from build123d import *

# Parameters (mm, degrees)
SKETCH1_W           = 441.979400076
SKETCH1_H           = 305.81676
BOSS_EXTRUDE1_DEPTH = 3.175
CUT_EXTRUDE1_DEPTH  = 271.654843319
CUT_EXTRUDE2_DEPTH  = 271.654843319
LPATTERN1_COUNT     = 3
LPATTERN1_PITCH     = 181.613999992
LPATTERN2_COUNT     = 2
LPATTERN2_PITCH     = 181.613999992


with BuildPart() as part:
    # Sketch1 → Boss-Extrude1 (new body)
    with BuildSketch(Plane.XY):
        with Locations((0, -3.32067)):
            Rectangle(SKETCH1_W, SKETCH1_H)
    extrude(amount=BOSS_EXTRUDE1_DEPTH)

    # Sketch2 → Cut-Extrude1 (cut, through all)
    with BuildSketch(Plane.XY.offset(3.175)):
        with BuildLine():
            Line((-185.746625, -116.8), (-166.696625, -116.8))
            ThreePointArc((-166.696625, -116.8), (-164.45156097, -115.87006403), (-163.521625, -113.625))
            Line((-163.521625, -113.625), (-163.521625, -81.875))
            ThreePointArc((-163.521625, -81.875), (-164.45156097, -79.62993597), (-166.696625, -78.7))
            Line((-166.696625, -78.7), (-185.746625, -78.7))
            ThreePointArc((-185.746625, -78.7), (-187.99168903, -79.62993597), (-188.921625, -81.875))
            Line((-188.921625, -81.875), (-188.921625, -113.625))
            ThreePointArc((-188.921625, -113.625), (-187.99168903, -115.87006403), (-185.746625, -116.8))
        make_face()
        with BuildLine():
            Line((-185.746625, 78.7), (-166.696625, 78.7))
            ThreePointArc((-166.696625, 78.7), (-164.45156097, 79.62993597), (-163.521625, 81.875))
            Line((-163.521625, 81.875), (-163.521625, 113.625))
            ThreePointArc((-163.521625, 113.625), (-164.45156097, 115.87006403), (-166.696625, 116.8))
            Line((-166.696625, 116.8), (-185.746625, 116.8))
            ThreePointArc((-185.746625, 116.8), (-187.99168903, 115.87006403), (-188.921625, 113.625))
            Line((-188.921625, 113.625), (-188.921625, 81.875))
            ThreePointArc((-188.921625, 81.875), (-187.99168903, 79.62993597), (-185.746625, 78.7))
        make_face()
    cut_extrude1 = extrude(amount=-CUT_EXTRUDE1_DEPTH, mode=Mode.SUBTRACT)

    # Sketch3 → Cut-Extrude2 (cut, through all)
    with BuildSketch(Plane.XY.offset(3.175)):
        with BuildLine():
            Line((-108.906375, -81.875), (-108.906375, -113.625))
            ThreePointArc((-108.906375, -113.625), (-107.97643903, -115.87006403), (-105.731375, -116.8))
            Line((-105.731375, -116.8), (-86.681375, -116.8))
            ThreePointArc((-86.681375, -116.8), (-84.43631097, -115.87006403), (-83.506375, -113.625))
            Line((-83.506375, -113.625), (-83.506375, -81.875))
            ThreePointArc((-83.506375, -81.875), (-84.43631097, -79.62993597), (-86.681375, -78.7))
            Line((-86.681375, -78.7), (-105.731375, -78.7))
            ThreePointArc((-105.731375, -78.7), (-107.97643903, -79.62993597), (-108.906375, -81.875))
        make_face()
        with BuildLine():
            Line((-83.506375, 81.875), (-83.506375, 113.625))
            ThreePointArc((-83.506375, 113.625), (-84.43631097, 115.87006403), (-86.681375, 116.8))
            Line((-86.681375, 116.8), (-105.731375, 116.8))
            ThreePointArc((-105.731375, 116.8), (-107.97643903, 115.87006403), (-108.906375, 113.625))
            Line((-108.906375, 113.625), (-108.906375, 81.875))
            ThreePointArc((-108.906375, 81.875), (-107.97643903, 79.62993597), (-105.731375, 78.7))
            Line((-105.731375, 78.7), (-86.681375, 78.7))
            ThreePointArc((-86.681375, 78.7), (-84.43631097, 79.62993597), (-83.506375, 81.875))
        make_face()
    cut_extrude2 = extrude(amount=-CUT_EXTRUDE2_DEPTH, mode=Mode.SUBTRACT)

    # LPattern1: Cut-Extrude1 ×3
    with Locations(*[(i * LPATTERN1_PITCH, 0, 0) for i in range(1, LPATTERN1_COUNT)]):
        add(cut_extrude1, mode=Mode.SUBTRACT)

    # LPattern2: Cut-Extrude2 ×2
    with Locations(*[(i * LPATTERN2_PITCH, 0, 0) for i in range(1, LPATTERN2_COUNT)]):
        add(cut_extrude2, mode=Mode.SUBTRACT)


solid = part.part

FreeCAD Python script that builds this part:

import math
import FreeCAD as App
import Part
import Sketcher
from FreeCAD import Vector
Q = App.Units.Quantity

doc = App.newDocument("Part")
body = doc.addObject("PartDesign::Body", "Body")

sketch1 = doc.addObject("Sketcher::SketchObject", "Sketch")
body.addObject(sketch1)
sketch1.AttachmentSupport = (doc.XY_Plane, [""])
sketch1.MapMode = "FlatFace"
sketch1.addGeometry(Part.LineSegment(Vector(-221, 150, 0), Vector(-221, -156, 0)), False)
sketch1.addGeometry(Part.LineSegment(Vector(-221, -156, 0), Vector(221, -156, 0)), False)
sketch1.addGeometry(Part.LineSegment(Vector(221, -156, 0), Vector(221, 150, 0)), False)
sketch1.addGeometry(Part.LineSegment(Vector(221, 150, 0), Vector(-221, 150, 0)), False)
sketch1.addConstraint(Sketcher.Constraint("Coincident", 0, 2, 1, 1))
sketch1.addConstraint(Sketcher.Constraint("Coincident", 1, 2, 2, 1))
sketch1.addConstraint(Sketcher.Constraint("Coincident", 2, 2, 3, 1))
sketch1.addConstraint(Sketcher.Constraint("Coincident", 3, 2, 0, 1))
sketch1.addConstraint(Sketcher.Constraint("Vertical", 0))
sketch1.addConstraint(Sketcher.Constraint("Horizontal", 1))
sketch1.addConstraint(Sketcher.Constraint("Vertical", 2))
sketch1.addConstraint(Sketcher.Constraint("Horizontal", 3))
sketch1.addConstraint(Sketcher.Constraint("DistanceX", 1, 1, 1, 2, 441.9794))
sketch1.addConstraint(Sketcher.Constraint("DistanceY", 0, 2, 0, 1, 305.81676))
sketch1.addConstraint(Sketcher.Constraint("DistanceX", 0, 2, -1, 1, 220.9897))
sketch1.addConstraint(Sketcher.Constraint("DistanceY", 0, 2, -1, 1, 156.22905))
pad1 = doc.addObject("PartDesign::Pad", "Pad")
body.addObject(pad1)
pad1.Profile = sketch1
pad1.Length = Q("0.125 in")

sketch2 = doc.addObject("Sketcher::SketchObject", "Sketch001")
body.addObject(sketch2)
sketch2.AttachmentSupport = (doc.XY_Plane, [""])
sketch2.MapMode = "FlatFace"
sketch2.AttachmentOffset = App.Placement(Vector(0, 0, 0.125 * 25.4), App.Rotation())
sketch2.addGeometry(Part.LineSegment(Vector(-185.7, -116.8, 0), Vector(-166.7, -116.8, 0)), False)
sketch2.addGeometry(Part.ArcOfCircle(Part.Circle(Vector(-166.7, -113.6, 0), Vector(0, 0, 1), 3.2), math.radians(-90), math.radians(0)), False)
sketch2.addGeometry(Part.LineSegment(Vector(-163.5, -113.6, 0), Vector(-163.5, -81.9, 0)), False)
sketch2.addGeometry(Part.ArcOfCircle(Part.Circle(Vector(-166.7, -81.9, 0), Vector(0, 0, 1), 3.2), math.radians(0), math.radians(90)), False)
sketch2.addGeometry(Part.LineSegment(Vector(-166.7, -78.7, 0), Vector(-185.7, -78.7, 0)), False)
sketch2.addGeometry(Part.ArcOfCircle(Part.Circle(Vector(-185.7, -81.9, 0), Vector(0, 0, 1), 3.2), math.radians(90), math.radians(180)), False)
sketch2.addGeometry(Part.LineSegment(Vector(-188.9, -81.9, 0), Vector(-188.9, -113.6, 0)), False)
sketch2.addGeometry(Part.ArcOfCircle(Part.Circle(Vector(-185.7, -113.6, 0), Vector(0, 0, 1), 3.2), math.radians(-180), math.radians(-90)), False)
sketch2.addGeometry(Part.LineSegment(Vector(-185.7, 78.7, 0), Vector(-166.7, 78.7, 0)), False)
sketch2.addGeometry(Part.ArcOfCircle(Part.Circle(Vector(-166.7, 81.9, 0), Vector(0, 0, 1), 3.2), math.radians(-90), math.radians(0)), False)
sketch2.addGeometry(Part.LineSegment(Vector(-163.5, 81.9, 0), Vector(-163.5, 113.6, 0)), False)
sketch2.addGeometry(Part.ArcOfCircle(Part.Circle(Vector(-166.7, 113.6, 0), Vector(0, 0, 1), 3.2), math.radians(0), math.radians(90)), False)
sketch2.addGeometry(Part.LineSegment(Vector(-166.7, 116.8, 0), Vector(-185.7, 116.8, 0)), False)
sketch2.addGeometry(Part.ArcOfCircle(Part.Circle(Vector(-185.7, 113.6, 0), Vector(0, 0, 1), 3.2), math.radians(90), math.radians(180)), False)
sketch2.addGeometry(Part.LineSegment(Vector(-188.9, 113.6, 0), Vector(-188.9, 81.9, 0)), False)
sketch2.addGeometry(Part.ArcOfCircle(Part.Circle(Vector(-185.7, 81.9, 0), Vector(0, 0, 1), 3.2), math.radians(-180), math.radians(-90)), False)
sketch2.addConstraint(Sketcher.Constraint("Tangent", 0, 2, 1, 1))
sketch2.addConstraint(Sketcher.Constraint("Tangent", 1, 2, 2, 1))
sketch2.addConstraint(Sketcher.Constraint("Tangent", 2, 2, 3, 1))
sketch2.addConstraint(Sketcher.Constraint("Tangent", 3, 2, 4, 1))
sketch2.addConstraint(Sketcher.Constraint("Tangent", 4, 2, 5, 1))
sketch2.addConstraint(Sketcher.Constraint("Tangent", 5, 2, 6, 1))
sketch2.addConstraint(Sketcher.Constraint("Tangent", 6, 2, 7, 1))
sketch2.addConstraint(Sketcher.Constraint("Tangent", 7, 2, 0, 1))
sketch2.addConstraint(Sketcher.Constraint("Tangent", 8, 2, 9, 1))
sketch2.addConstraint(Sketcher.Constraint("Tangent", 9, 2, 10, 1))
sketch2.addConstraint(Sketcher.Constraint("Tangent", 10, 2, 11, 1))
sketch2.addConstraint(Sketcher.Constraint("Tangent", 11, 2, 12, 1))
sketch2.addConstraint(Sketcher.Constraint("Tangent", 12, 2, 13, 1))
sketch2.addConstraint(Sketcher.Constraint("Tangent", 13, 2, 14, 1))
sketch2.addConstraint(Sketcher.Constraint("Tangent", 14, 2, 15, 1))
sketch2.addConstraint(Sketcher.Constraint("Tangent", 15, 2, 8, 1))
sketch2.addConstraint(Sketcher.Constraint("Horizontal", 0))
sketch2.addConstraint(Sketcher.Constraint("Vertical", 2))
sketch2.addConstraint(Sketcher.Constraint("Horizontal", 4))
sketch2.addConstraint(Sketcher.Constraint("Vertical", 6))
sketch2.addConstraint(Sketcher.Constraint("Horizontal", 8))
sketch2.addConstraint(Sketcher.Constraint("Vertical", 10))
sketch2.addConstraint(Sketcher.Constraint("Horizontal", 12))
sketch2.addConstraint(Sketcher.Constraint("Vertical", 14))
sketch2.addConstraint(Sketcher.Constraint("Equal", 1, 3))
sketch2.addConstraint(Sketcher.Constraint("Equal", 3, 5))
sketch2.addConstraint(Sketcher.Constraint("Equal", 5, 7))
sketch2.addConstraint(Sketcher.Constraint("Equal", 7, 9))
sketch2.addConstraint(Sketcher.Constraint("Equal", 9, 11))
sketch2.addConstraint(Sketcher.Constraint("Equal", 11, 13))
sketch2.addConstraint(Sketcher.Constraint("Equal", 13, 15))
sketch2.addConstraint(Sketcher.Constraint("Symmetric", 3, 3, 9, 3, -1))
sketch2.addConstraint(Sketcher.Constraint("Symmetric", 7, 3, 13, 3, -1))
sketch2.addConstraint(Sketcher.Constraint("Radius", 1, Q("0.125 in")))
sketch2.addConstraint(Sketcher.Constraint("DistanceX", 5, 2, 2, 2, Q("1 in")))
sketch2.addConstraint(Sketcher.Constraint("DistanceY", 2, 1, 2, 2, Q("1.25 in")))
sketch2.addConstraint(Sketcher.Constraint("DistanceY", 1, 3, -1, 1, 113.625))
sketch2.addConstraint(Sketcher.Constraint("DistanceX", 1, 3, -1, 1, 166.696625))
pocket1 = doc.addObject("PartDesign::Pocket", "Pocket")
body.addObject(pocket1)
pocket1.Profile = sketch2
pocket1.Type = "ThroughAll"

sketch3 = doc.addObject("Sketcher::SketchObject", "Sketch002")
body.addObject(sketch3)
sketch3.AttachmentSupport = (doc.XY_Plane, [""])
sketch3.MapMode = "FlatFace"
sketch3.AttachmentOffset = App.Placement(Vector(0, 0, 0.125 * 25.4), App.Rotation())
sketch3.addGeometry(Part.LineSegment(Vector(-108.9, -81.9, 0), Vector(-108.9, -113.6, 0)), False)
sketch3.addGeometry(Part.ArcOfCircle(Part.Circle(Vector(-105.7, -113.6, 0), Vector(0, 0, 1), 3.2), math.radians(-180), math.radians(-90)), False)
sketch3.addGeometry(Part.LineSegment(Vector(-105.7, -116.8, 0), Vector(-86.7, -116.8, 0)), False)
sketch3.addGeometry(Part.ArcOfCircle(Part.Circle(Vector(-86.7, -113.6, 0), Vector(0, 0, 1), 3.2), math.radians(-90), math.radians(0)), False)
sketch3.addGeometry(Part.LineSegment(Vector(-83.5, -113.6, 0), Vector(-83.5, -81.9, 0)), False)
sketch3.addGeometry(Part.ArcOfCircle(Part.Circle(Vector(-86.7, -81.9, 0), Vector(0, 0, 1), 3.2), math.radians(0), math.radians(90)), False)
sketch3.addGeometry(Part.LineSegment(Vector(-86.7, -78.7, 0), Vector(-105.7, -78.7, 0)), False)
sketch3.addGeometry(Part.ArcOfCircle(Part.Circle(Vector(-105.7, -81.9, 0), Vector(0, 0, 1), 3.2), math.radians(90), math.radians(180)), False)
sketch3.addGeometry(Part.LineSegment(Vector(-83.5, 81.9, 0), Vector(-83.5, 113.6, 0)), False)
sketch3.addGeometry(Part.ArcOfCircle(Part.Circle(Vector(-86.7, 113.6, 0), Vector(0, 0, 1), 3.2), math.radians(0), math.radians(90)), False)
sketch3.addGeometry(Part.LineSegment(Vector(-86.7, 116.8, 0), Vector(-105.7, 116.8, 0)), False)
sketch3.addGeometry(Part.ArcOfCircle(Part.Circle(Vector(-105.7, 113.6, 0), Vector(0, 0, 1), 3.2), math.radians(90), math.radians(180)), False)
sketch3.addGeometry(Part.LineSegment(Vector(-108.9, 113.6, 0), Vector(-108.9, 81.9, 0)), False)
sketch3.addGeometry(Part.ArcOfCircle(Part.Circle(Vector(-105.7, 81.9, 0), Vector(0, 0, 1), 3.2), math.radians(-180), math.radians(-90)), False)
sketch3.addGeometry(Part.LineSegment(Vector(-105.7, 78.7, 0), Vector(-86.7, 78.7, 0)), False)
sketch3.addGeometry(Part.ArcOfCircle(Part.Circle(Vector(-86.7, 81.9, 0), Vector(0, 0, 1), 3.2), math.radians(-90), math.radians(0)), False)
sketch3.addConstraint(Sketcher.Constraint("Tangent", 0, 2, 1, 1))
sketch3.addConstraint(Sketcher.Constraint("Tangent", 1, 2, 2, 1))
sketch3.addConstraint(Sketcher.Constraint("Tangent", 2, 2, 3, 1))
sketch3.addConstraint(Sketcher.Constraint("Tangent", 3, 2, 4, 1))
sketch3.addConstraint(Sketcher.Constraint("Tangent", 4, 2, 5, 1))
sketch3.addConstraint(Sketcher.Constraint("Tangent", 5, 2, 6, 1))
sketch3.addConstraint(Sketcher.Constraint("Tangent", 6, 2, 7, 1))
sketch3.addConstraint(Sketcher.Constraint("Tangent", 7, 2, 0, 1))
sketch3.addConstraint(Sketcher.Constraint("Tangent", 8, 2, 9, 1))
sketch3.addConstraint(Sketcher.Constraint("Tangent", 9, 2, 10, 1))
sketch3.addConstraint(Sketcher.Constraint("Tangent", 10, 2, 11, 1))
sketch3.addConstraint(Sketcher.Constraint("Tangent", 11, 2, 12, 1))
sketch3.addConstraint(Sketcher.Constraint("Tangent", 12, 2, 13, 1))
sketch3.addConstraint(Sketcher.Constraint("Tangent", 13, 2, 14, 1))
sketch3.addConstraint(Sketcher.Constraint("Tangent", 14, 2, 15, 1))
sketch3.addConstraint(Sketcher.Constraint("Tangent", 15, 2, 8, 1))
sketch3.addConstraint(Sketcher.Constraint("Vertical", 0))
sketch3.addConstraint(Sketcher.Constraint("Horizontal", 2))
sketch3.addConstraint(Sketcher.Constraint("Vertical", 4))
sketch3.addConstraint(Sketcher.Constraint("Horizontal", 6))
sketch3.addConstraint(Sketcher.Constraint("Vertical", 8))
sketch3.addConstraint(Sketcher.Constraint("Horizontal", 10))
sketch3.addConstraint(Sketcher.Constraint("Vertical", 12))
sketch3.addConstraint(Sketcher.Constraint("Horizontal", 14))
sketch3.addConstraint(Sketcher.Constraint("Equal", 1, 3))
sketch3.addConstraint(Sketcher.Constraint("Equal", 3, 5))
sketch3.addConstraint(Sketcher.Constraint("Equal", 5, 7))
sketch3.addConstraint(Sketcher.Constraint("Equal", 7, 9))
sketch3.addConstraint(Sketcher.Constraint("Equal", 9, 11))
sketch3.addConstraint(Sketcher.Constraint("Equal", 11, 13))
sketch3.addConstraint(Sketcher.Constraint("Equal", 13, 15))
sketch3.addConstraint(Sketcher.Constraint("Symmetric", 3, 3, 9, 3, -1))
sketch3.addConstraint(Sketcher.Constraint("Symmetric", 7, 3, 13, 3, -1))
sketch3.addConstraint(Sketcher.Constraint("Radius", 1, Q("0.125 in")))
sketch3.addConstraint(Sketcher.Constraint("DistanceX", 0, 2, 3, 2, Q("1 in")))
sketch3.addConstraint(Sketcher.Constraint("DistanceY", 0, 2, 0, 1, Q("1.25 in")))
sketch3.addConstraint(Sketcher.Constraint("DistanceY", 1, 3, -1, 1, 113.625))
sketch3.addConstraint(Sketcher.Constraint("DistanceX", 1, 3, -1, 1, 105.731375))
pocket2 = doc.addObject("PartDesign::Pocket", "Pocket001")
body.addObject(pocket2)
pocket2.Profile = sketch3
pocket2.Type = "ThroughAll"
doc.recompute()

linearpattern = doc.addObject("PartDesign::LinearPattern", "LinearPattern")
body.addObject(linearpattern)
linearpattern.Originals = [pocket1]
linearpattern.Direction = (doc.X_Axis, [""])
linearpattern.Mode = "offset"
linearpattern.Offset = 181.614
linearpattern.Occurrences = 3
body.Tip = linearpattern
doc.recompute()

linearpattern2 = doc.addObject("PartDesign::LinearPattern", "LinearPattern001")
body.addObject(linearpattern2)
linearpattern2.Originals = [pocket2]
linearpattern2.Direction = (doc.X_Axis, [""])
linearpattern2.Mode = "offset"
linearpattern2.Offset = 181.614
linearpattern2.Occurrences = 2
body.Tip = linearpattern2

doc.recompute()
